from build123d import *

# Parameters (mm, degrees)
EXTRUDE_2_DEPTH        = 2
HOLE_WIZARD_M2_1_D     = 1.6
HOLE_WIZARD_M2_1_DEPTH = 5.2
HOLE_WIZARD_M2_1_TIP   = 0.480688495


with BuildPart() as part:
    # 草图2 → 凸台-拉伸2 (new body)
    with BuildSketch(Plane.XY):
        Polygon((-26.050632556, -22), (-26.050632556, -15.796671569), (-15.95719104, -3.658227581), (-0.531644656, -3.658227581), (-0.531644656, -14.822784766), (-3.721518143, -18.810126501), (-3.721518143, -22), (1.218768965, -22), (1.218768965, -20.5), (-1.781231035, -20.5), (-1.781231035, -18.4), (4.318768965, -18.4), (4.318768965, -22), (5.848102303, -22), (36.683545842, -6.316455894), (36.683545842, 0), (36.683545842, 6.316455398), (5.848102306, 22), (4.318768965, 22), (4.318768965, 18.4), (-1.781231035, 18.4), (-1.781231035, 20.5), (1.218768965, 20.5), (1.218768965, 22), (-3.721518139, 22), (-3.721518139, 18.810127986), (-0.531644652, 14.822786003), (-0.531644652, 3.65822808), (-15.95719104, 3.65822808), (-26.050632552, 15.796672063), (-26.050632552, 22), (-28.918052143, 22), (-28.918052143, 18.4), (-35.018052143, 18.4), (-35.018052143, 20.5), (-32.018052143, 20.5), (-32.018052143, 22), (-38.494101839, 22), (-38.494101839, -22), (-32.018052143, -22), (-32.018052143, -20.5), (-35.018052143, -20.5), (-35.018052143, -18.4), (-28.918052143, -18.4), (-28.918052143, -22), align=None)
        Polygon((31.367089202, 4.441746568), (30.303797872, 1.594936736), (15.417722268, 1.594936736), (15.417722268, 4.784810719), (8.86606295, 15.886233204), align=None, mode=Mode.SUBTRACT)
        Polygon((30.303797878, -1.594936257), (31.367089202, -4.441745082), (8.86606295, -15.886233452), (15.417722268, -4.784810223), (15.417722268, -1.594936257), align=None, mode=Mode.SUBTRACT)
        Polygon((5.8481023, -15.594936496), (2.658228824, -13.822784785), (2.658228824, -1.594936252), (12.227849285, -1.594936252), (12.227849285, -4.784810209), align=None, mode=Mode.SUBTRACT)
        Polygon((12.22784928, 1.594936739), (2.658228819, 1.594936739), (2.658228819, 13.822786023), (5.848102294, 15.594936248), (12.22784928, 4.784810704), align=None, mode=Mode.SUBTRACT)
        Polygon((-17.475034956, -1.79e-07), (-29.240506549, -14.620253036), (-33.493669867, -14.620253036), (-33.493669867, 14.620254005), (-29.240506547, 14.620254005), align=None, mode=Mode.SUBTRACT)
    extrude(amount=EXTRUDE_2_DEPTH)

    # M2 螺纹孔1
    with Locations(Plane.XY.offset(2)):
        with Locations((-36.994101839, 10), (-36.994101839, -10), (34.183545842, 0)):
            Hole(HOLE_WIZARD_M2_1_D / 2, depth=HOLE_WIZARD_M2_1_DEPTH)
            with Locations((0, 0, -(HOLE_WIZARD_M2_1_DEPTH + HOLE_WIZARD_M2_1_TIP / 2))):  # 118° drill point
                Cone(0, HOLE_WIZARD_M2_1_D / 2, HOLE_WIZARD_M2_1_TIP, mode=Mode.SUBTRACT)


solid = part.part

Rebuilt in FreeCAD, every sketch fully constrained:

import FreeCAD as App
import Part
import Sketcher

V = App.Vector

doc = App.newDocument("Part")
body = doc.addObject("PartDesign::Body", "Body")

sketch1 = body.newObject("Sketcher::SketchObject", "Sketch")
sketch1.AttachmentSupport = (doc.getObject("XY_Plane"), [""])
sketch1.MapMode = "FlatFace"
sketch1.addGeometry(Part.LineSegment(V(-26.1, -22, 0), V(-26.1, -15.8, 0)), False)
sketch1.addGeometry(Part.LineSegment(V(-26.1, -15.8, 0), V(-16, -3.7, 0)), False)
sketch1.addGeometry(Part.LineSegment(V(-16, -3.7, 0), V(-0.5, -3.7, 0)), False)
sketch1.addGeometry(Part.LineSegment(V(-0.5, -3.7, 0), V(-0.5, -14.8, 0)), False)
sketch1.addGeometry(Part.LineSegment(V(-0.5, -14.8, 0), V(-3.7, -18.8, 0)), False)
sketch1.addGeometry(Part.LineSegment(V(-3.7, -18.8, 0), V(-3.7, -22, 0)), False)
sketch1.addGeometry(Part.LineSegment(V(-3.7, -22, 0), V(1.2, -22, 0)), False)
sketch1.addGeometry(Part.LineSegment(V(1.2, -22, 0), V(1.2, -20.5, 0)), False)
sketch1.addGeometry(Part.LineSegment(V(1.2, -20.5, 0), V(-1.8, -20.5, 0)), False)
sketch1.addGeometry(Part.LineSegment(V(-1.8, -20.5, 0), V(-1.8, -18.4, 0)), False)
sketch1.addGeometry(Part.LineSegment(V(-1.8, -18.4, 0), V(4.3, -18.4, 0)), False)
sketch1.addGeometry(Part.LineSegment(V(4.3, -18.4, 0), V(4.3, -22, 0)), False)
sketch1.addGeometry(Part.LineSegment(V(4.3, -22, 0), V(5.8, -22, 0)), False)
sketch1.addGeometry(Part.LineSegment(V(5.8, -22, 0), V(36.7, -6.3, 0)), False)
sketch1.addGeometry(Part.LineSegment(V(36.7, -6.3, 0), V(36.7, 6.3, 0)), False)
sketch1.addGeometry(Part.LineSegment(V(36.7, 6.3, 0), V(5.8, 22, 0)), False)
sketch1.addGeometry(Part.LineSegment(V(5.8, 22, 0), V(4.3, 22, 0)), False)
sketch1.addGeometry(Part.LineSegment(V(4.3, 22, 0), V(4.3, 18.4, 0)), False)
sketch1.addGeometry(Part.LineSegment(V(4.3, 18.4, 0), V(-1.8, 18.4, 0)), False)
sketch1.addGeometry(Part.LineSegment(V(-1.8, 18.4, 0), V(-1.8, 20.5, 0)), False)
sketch1.addGeometry(Part.LineSegment(V(-1.8, 20.5, 0), V(1.2, 20.5, 0)), False)
sketch1.addGeometry(Part.LineSegment(V(1.2, 20.5, 0), V(1.2, 22, 0)), False)
sketch1.addGeometry(Part.LineSegment(V(1.2, 22, 0), V(-3.7, 22, 0)), False)
sketch1.addGeometry(Part.LineSegment(V(-3.7, 22, 0), V(-3.7, 18.8, 0)), False)
sketch1.addGeometry(Part.LineSegment(V(-3.7, 18.8, 0), V(-0.5, 14.8, 0)), False)
sketch1.addGeometry(Part.LineSegment(V(-0.5, 14.8, 0), V(-0.5, 3.7, 0)), False)
sketch1.addGeometry(Part.LineSegment(V(-0.5, 3.7, 0), V(-16, 3.7, 0)), False)
sketch1.addGeometry(Part.LineSegment(V(-16, 3.7, 0), V(-26.1, 15.8, 0)), False)
sketch1.addGeometry(Part.LineSegment(V(-26.1, 15.8, 0), V(-26.1, 22, 0)), False)
sketch1.addGeometry(Part.LineSegment(V(-26.1, 22, 0), V(-28.9, 22, 0)), False)
sketch1.addGeometry(Part.LineSegment(V(-28.9, 22, 0), V(-28.9, 18.4, 0)), False)
sketch1.addGeometry(Part.LineSegment(V(-28.9, 18.4, 0), V(-35, 18.4, 0)), False)
sketch1.addGeometry(Part.LineSegment(V(-35, 18.4, 0), V(-35, 20.5, 0)), False)
sketch1.addGeometry(Part.LineSegment(V(-35, 20.5, 0), V(-32, 20.5, 0)), False)
sketch1.addGeometry(Part.LineSegment(V(-32, 20.5, 0), V(-32, 22, 0)), False)
sketch1.addGeometry(Part.LineSegment(V(-32, 22, 0), V(-38.5, 22, 0)), False)
sketch1.addGeometry(Part.LineSegment(V(-38.5, 22, 0), V(-38.5, -22, 0)), False)
sketch1.addGeometry(Part.LineSegment(V(-38.5, -22, 0), V(-32, -22, 0)), False)
sketch1.addGeometry(Part.LineSegment(V(-32, -22, 0), V(-32, -20.5, 0)), False)
sketch1.addGeometry(Part.LineSegment(V(-32, -20.5, 0), V(-35, -20.5, 0)), False)
sketch1.addGeometry(Part.LineSegment(V(-35, -20.5, 0), V(-35, -18.4, 0)), False)
sketch1.addGeometry(Part.LineSegment(V(-35, -18.4, 0), V(-28.9, -18.4, 0)), False)
sketch1.addGeometry(Part.LineSegment(V(-28.9, -18.4, 0), V(-28.9, -22, 0)), False)
sketch1.addGeometry(Part.LineSegment(V(-28.9, -22, 0), V(-26.1, -22, 0)), False)
sketch1.addGeometry(Part.LineSegment(V(12.2, -4.8, 0), V(5.8, -15.6, 0)), False)
sketch1.addGeometry(Part.LineSegment(V(5.8, -15.6, 0), V(2.7, -13.8, 0)), False)
sketch1.addGeometry(Part.LineSegment(V(2.7, -13.8, 0), V(2.7, -1.6, 0)), False)
sketch1.addGeometry(Part.LineSegment(V(2.7, -1.6, 0), V(12.2, -1.6, 0)), False)
sketch1.addGeometry(Part.LineSegment(V(12.2, -1.6, 0), V(12.2, -4.8, 0)), False)
sketch1.addGeometry(Part.LineSegment(V(15.4, -1.6, 0), V(30.3, -1.6, 0)), False)
sketch1.addGeometry(Part.LineSegment(V(30.3, -1.6, 0), V(31.4, -4.4, 0)), False)
sketch1.addGeometry(Part.LineSegment(V(31.4, -4.4, 0), V(8.9, -15.9, 0)), False)
sketch1.addGeometry(Part.LineSegment(V(8.9, -15.9, 0), V(15.4, -4.8, 0)), False)
sketch1.addGeometry(Part.LineSegment(V(15.4, -4.8, 0), V(15.4, -1.6, 0)), False)
sketch1.addGeometry(Part.LineSegment(V(-29.2, 14.6, 0), V(-17.5, 0, 0)), False)
sketch1.addGeometry(Part.LineSegment(V(-17.5, 0, 0), V(-29.2, -14.6, 0)), False)
sketch1.addGeometry(Part.LineSegment(V(-29.2, -14.6, 0), V(-33.5, -14.6, 0)), False)
sketch1.addGeometry(Part.LineSegment(V(-33.5, -14.6, 0), V(-33.5, 14.6, 0)), False)
sketch1.addGeometry(Part.LineSegment(V(-33.5, 14.6, 0), V(-29.2, 14.6, 0)), False)
sketch1.addGeometry(Part.LineSegment(V(12.2, 4.8, 0), V(12.2, 1.6, 0)), False)
sketch1.addGeometry(Part.LineSegment(V(12.2, 1.6, 0), V(2.7, 1.6, 0)), False)
sketch1.addGeometry(Part.LineSegment(V(2.7, 1.6, 0), V(2.7, 13.8, 0)), False)
sketch1.addGeometry(Part.LineSegment(V(2.7, 13.8, 0), V(5.8, 15.6, 0)), False)
sketch1.addGeometry(Part.LineSegment(V(5.8, 15.6, 0), V(12.2, 4.8, 0)), False)
sketch1.addGeometry(Part.LineSegment(V(8.9, 15.9, 0), V(31.4, 4.4, 0)), False)
sketch1.addGeometry(Part.LineSegment(V(31.4, 4.4, 0), V(30.3, 1.6, 0)), False)
sketch1.addGeometry(Part.LineSegment(V(30.3, 1.6, 0), V(15.4, 1.6, 0)), False)
sketch1.addGeometry(Part.LineSegment(V(15.4, 1.6, 0), V(15.4, 4.8, 0)), False)
sketch1.addGeometry(Part.LineSegment(V(15.4, 4.8, 0), V(8.9, 15.9, 0)), False)
sketch1.addConstraint(Sketcher.Constraint("Coincident", 0, 2, 1, 1))
sketch1.addConstraint(Sketcher.Constraint("Coincident", 1, 2, 2, 1))
sketch1.addConstraint(Sketcher.Constraint("Coincident", 2, 2, 3, 1))
sketch1.addConstraint(Sketcher.Constraint("Coincident", 3, 2, 4, 1))
sketch1.addConstraint(Sketcher.Constraint("Coincident", 4, 2, 5, 1))
sketch1.addConstraint(Sketcher.Constraint("Coincident", 5, 2, 6, 1))
sketch1.addConstraint(Sketcher.Constraint("Coincident", 6, 2, 7, 1))
sketch1.addConstraint(Sketcher.Constraint("Coincident", 7, 2, 8, 1))
sketch1.addConstraint(Sketcher.Constraint("Coincident", 8, 2, 9, 1))
sketch1.addConstraint(Sketcher.Constraint("Coincident", 9, 2, 10, 1))
sketch1.addConstraint(Sketcher.Constraint("Coincident", 10, 2, 11, 1))
sketch1.addConstraint(Sketcher.Constraint("Coincident", 11, 2, 12, 1))
sketch1.addConstraint(Sketcher.Constraint("Coincident", 12, 2, 13, 1))
sketch1.addConstraint(Sketcher.Constraint("Coincident", 13, 2, 14, 1))
sketch1.addConstraint(Sketcher.Constraint("Coincident", 14, 2, 15, 1))
sketch1.addConstraint(Sketcher.Constraint("Coincident", 15, 2, 16, 1))
sketch1.addConstraint(Sketcher.Constraint("Coincident", 16, 2, 17, 1))
sketch1.addConstraint(Sketcher.Constraint("Coincident", 17, 2, 18, 1))
sketch1.addConstraint(Sketcher.Constraint("Coincident", 18, 2, 19, 1))
sketch1.addConstraint(Sketcher.Constraint("Coincident", 19, 2, 20, 1))
sketch1.addConstraint(Sketcher.Constraint("Coincident", 20, 2, 21, 1))
sketch1.addConstraint(Sketcher.Constraint("Coincident", 21, 2, 22, 1))
sketch1.addConstraint(Sketcher.Constraint("Coincident", 22, 2, 23, 1))
sketch1.addConstraint(Sketcher.Constraint("Coincident", 23, 2, 24, 1))
sketch1.addConstraint(Sketcher.Constraint("Coincident", 24, 2, 25, 1))
sketch1.addConstraint(Sketcher.Constraint("Coincident", 25, 2, 26, 1))
sketch1.addConstraint(Sketcher.Constraint("Coincident", 26, 2, 27, 1))
sketch1.addConstraint(Sketcher.Constraint("Coincident", 27, 2, 28, 1))
sketch1.addConstraint(Sketcher.Constraint("Coincident", 28, 2, 29, 1))
sketch1.addConstraint(Sketcher.Constraint("Coincident", 29, 2, 30, 1))
sketch1.addConstraint(Sketcher.Constraint("Coincident", 30, 2, 31, 1))
sketch1.addConstraint(Sketcher.Constraint("Coincident", 31, 2, 32, 1))
sketch1.addConstraint(Sketcher.Constraint("Coincident", 32, 2, 33, 1))
sketch1.addConstraint(Sketcher.Constraint("Coincident", 33, 2, 34, 1))
sketch1.addConstraint(Sketcher.Constraint("Coincident", 34, 2, 35, 1))
sketch1.addConstraint(Sketcher.Constraint("Coincident", 35, 2, 36, 1))
sketch1.addConstraint(Sketcher.Constraint("Coincident", 36, 2, 37, 1))
sketch1.addConstraint(Sketcher.Constraint("Coincident", 37, 2, 38, 1))
sketch1.addConstraint(Sketcher.Constraint("Coincident", 38, 2, 39, 1))
sketch1.addConstraint(Sketcher.Constraint("Coincident", 39, 2, 40, 1))
sketch1.addConstraint(Sketcher.Constraint("Coincident", 40, 2, 41, 1))
sketch1.addConstraint(Sketcher.Constraint("Coincident", 41, 2, 42, 1))
sketch1.addConstraint(Sketcher.Constraint("Coincident", 42, 2, 43, 1))
sketch1.addConstraint(Sketcher.Constraint("Coincident", 43, 2, 0, 1))
sketch1.addConstraint(Sketcher.Constraint("Coincident", 44, 2, 45, 1))
sketch1.addConstraint(Sketcher.Constraint("Coincident", 45, 2, 46, 1))
sketch1.addConstraint(Sketcher.Constraint("Coincident", 46, 2, 47, 1))
sketch1.addConstraint(Sketcher.Constraint("Coincident", 47, 2, 48, 1))
sketch1.addConstraint(Sketcher.Constraint("Coincident", 48, 2, 44, 1))
sketch1.addConstraint(Sketcher.Constraint("Coincident", 49, 2, 50, 1))
sketch1.addConstraint(Sketcher.Constraint("Coincident", 50, 2, 51, 1))
sketch1.addConstraint(Sketcher.Constraint("Coincident", 51, 2, 52, 1))
sketch1.addConstraint(Sketcher.Constraint("Coincident", 52, 2, 53, 1))
sketch1.addConstraint(Sketcher.Constraint("Coincident", 53, 2, 49, 1))
sketch1.addConstraint(Sketcher.Constraint("Coincident", 54, 2, 55, 1))
sketch1.addConstraint(Sketcher.Constraint("Coincident", 55, 2, 56, 1))
sketch1.addConstraint(Sketcher.Constraint("Coincident", 56, 2, 57, 1))
sketch1.addConstraint(Sketcher.Constraint("Coincident", 57, 2, 58, 1))
sketch1.addConstraint(Sketcher.Constraint("Coincident", 58, 2, 54, 1))
sketch1.addConstraint(Sketcher.Constraint("Coincident", 59, 2, 60, 1))
sketch1.addConstraint(Sketcher.Constraint("Coincident", 60, 2, 61, 1))
sketch1.addConstraint(Sketcher.Constraint("Coincident", 61, 2, 62, 1))
sketch1.addConstraint(Sketcher.Constraint("Coincident", 62, 2, 63, 1))
sketch1.addConstraint(Sketcher.Constraint("Coincident", 63, 2, 59, 1))
sketch1.addConstraint(Sketcher.Constraint("Coincident", 64, 2, 65, 1))
sketch1.addConstraint(Sketcher.Constraint("Coincident", 65, 2, 66, 1))
sketch1.addConstraint(Sketcher.Constraint("Coincident", 66, 2, 67, 1))
sketch1.addConstraint(Sketcher.Constraint("Coincident", 67, 2, 68, 1))
sketch1.addConstraint(Sketcher.Constraint("Coincident", 68, 2, 64, 1))
sketch1.addConstraint(Sketcher.Constraint("Vertical", 0))
sketch1.addConstraint(Sketcher.Constraint("Horizontal", 2))
sketch1.addConstraint(Sketcher.Constraint("Vertical", 3))
sketch1.addConstraint(Sketcher.Constraint("Vertical", 5))
sketch1.addConstraint(Sketcher.Constraint("Horizontal", 6))
sketch1.addConstraint(Sketcher.Constraint("Vertical", 7))
sketch1.addConstraint(Sketcher.Constraint("Horizontal", 8))
sketch1.addConstraint(Sketcher.Constraint("Vertical", 9))
sketch1.addConstraint(Sketcher.Constraint("Horizontal", 10))
sketch1.addConstraint(Sketcher.Constraint("Vertical", 11))
sketch1.addConstraint(Sketcher.Constraint("Horizontal", 12))
sketch1.addConstraint(Sketcher.Constraint("Vertical", 14))
sketch1.addConstraint(Sketcher.Constraint("Horizontal", 16))
sketch1.addConstraint(Sketcher.Constraint("Vertical", 17))
sketch1.addConstraint(Sketcher.Constraint("Horizontal", 18))
sketch1.addConstraint(Sketcher.Constraint("Vertical", 19))
sketch1.addConstraint(Sketcher.Constraint("Horizontal", 20))
sketch1.addConstraint(Sketcher.Constraint("Vertical", 21))
sketch1.addConstraint(Sketcher.Constraint("Horizontal", 22))
sketch1.addConstraint(Sketcher.Constraint("Vertical", 23))
sketch1.addConstraint(Sketcher.Constraint("Vertical", 25))
sketch1.addConstraint(Sketcher.Constraint("Horizontal", 26))
sketch1.addConstraint(Sketcher.Constraint("Vertical", 28))
sketch1.addConstraint(Sketcher.Constraint("Horizontal", 29))
sketch1.addConstraint(Sketcher.Constraint("Vertical", 30))
sketch1.addConstraint(Sketcher.Constraint("Horizontal", 31))
sketch1.addConstraint(Sketcher.Constraint("Vertical", 32))
sketch1.addConstraint(Sketcher.Constraint("Horizontal", 33))
sketch1.addConstraint(Sketcher.Constraint("Vertical", 34))
sketch1.addConstraint(Sketcher.Constraint("Horizontal", 35))
sketch1.addConstraint(Sketcher.Constraint("Vertical", 36))
sketch1.addConstraint(Sketcher.Constraint("Horizontal", 37))
sketch1.addConstraint(Sketcher.Constraint("Vertical", 38))
sketch1.addConstraint(Sketcher.Constraint("Horizontal", 39))
sketch1.addConstraint(Sketcher.Constraint("Vertical", 40))
sketch1.addConstraint(Sketcher.Constraint("Horizontal", 41))
sketch1.addConstraint(Sketcher.Constraint("Vertical", 42))
sketch1.addConstraint(Sketcher.Constraint("Horizontal", 43))
sketch1.addConstraint(Sketcher.Constraint("Vertical", 46))
sketch1.addConstraint(Sketcher.Constraint("Horizontal", 47))
sketch1.addConstraint(Sketcher.Constraint("Vertical", 48))
sketch1.addConstraint(Sketcher.Constraint("Horizontal", 49))
sketch1.addConstraint(Sketcher.Constraint("Vertical", 53))
sketch1.addConstraint(Sketcher.Constraint("Horizontal", 56))
sketch1.addConstraint(Sketcher.Constraint("Vertical", 57))
sketch1.addConstraint(Sketcher.Constraint("Horizontal", 58))
sketch1.addConstraint(Sketcher.Constraint("Vertical", 59))
sketch1.addConstraint(Sketcher.Constraint("Horizontal", 60))
sketch1.addConstraint(Sketcher.Constraint("Vertical", 61))
sketch1.addConstraint(Sketcher.Constraint("Horizontal", 66))
sketch1.addConstraint(Sketcher.Constraint("Vertical", 67))
sketch1.addConstraint(Sketcher.Constraint("Symmetric", 12, 2, 15, 2, -1))
sketch1.addConstraint(Sketcher.Constraint("Symmetric", 10, 2, 17, 2, -1))
sketch1.addConstraint(Sketcher.Constraint("Symmetric", 8, 2, 19, 2, -1))
sketch1.addConstraint(Sketcher.Constraint("Symmetric", 6, 2, 21, 2, -1))
sketch1.addConstraint(Sketcher.Constraint("Symmetric", 4, 2, 23, 2, -1))
sketch1.addConstraint(Sketcher.Constraint("Symmetric", 3, 2, 24, 2, -1))
sketch1.addConstraint(Sketcher.Constraint("Symmetric", 1, 2, 26, 2, -1))
sketch1.addConstraint(Sketcher.Constraint("Symmetric", 0, 2, 27, 2, -1))
sketch1.addConstraint(Sketcher.Constraint("Symmetric", 34, 2, 37, 2, -1))
sketch1.addConstraint(Sketcher.Constraint("Symmetric", 32, 2, 39, 2, -1))
sketch1.addConstraint(Sketcher.Constraint("Symmetric", 30, 2, 41, 2, -1))
sketch1.addConstraint(Sketcher.Constraint("Symmetric", 55, 2, 58, 2, -1))
sketch1.addConstraint(Sketcher.Constraint("Symmetric", 47, 2, 59, 2, -1))
sketch1.addConstraint(Sketcher.Constraint("Symmetric", 45, 2, 61, 2, -1))
sketch1.addConstraint(Sketcher.Constraint("Symmetric", 44, 2, 62, 2, -1))
sketch1.addConstraint(Sketcher.Constraint("Symmetric", 50, 2, 64, 2, -1))
sketch1.addConstraint(Sketcher.Constraint("Symmetric", 49, 2, 65, 2, -1))
sketch1.addConstraint(Sketcher.Constraint("Symmetric", 52, 2, 67, 2, -1))
sketch1.addConstraint(Sketcher.Constraint("Symmetric", 51, 2, 68, 2, -1))
sketch1.addConstraint(Sketcher.Constraint("PointOnObject", 54, 2, -1))
sketch1.addConstraint(Sketcher.Constraint("Parallel", 13, 51))
sketch1.addConstraint(Sketcher.Constraint("Parallel", 44, 52))
sketch1.addConstraint(Sketcher.Constraint("Parallel", 15, 64))
sketch1.addConstraint(Sketcher.Constraint("Parallel", 63, 68))
sketch1.addConstraint(Sketcher.Constraint("Horizontal", 6, 2, 11, 2))
sketch1.addConstraint(Sketcher.Constraint("Horizontal", 22, 2, 28, 2))
sketch1.addConstraint(Sketcher.Constraint("Horizontal", 18, 2, 30, 2))
sketch1.addConstraint(Sketcher.Constraint("Horizontal", 20, 2, 32, 2))
sketch1.addConstraint(Sketcher.Constraint("Horizontal", 29, 2, 34, 2))
sketch1.addConstraint(Sketcher.Constraint("Horizontal", 37, 2, 42, 2))
sketch1.addConstraint(Sketcher.Constraint("Horizontal", 47, 2, 49, 2))
sketch1.addConstraint(Sketcher.Constraint("Horizontal", 48, 2, 52, 2))
sketch1.addConstraint(Sketcher.Constraint("Vertical", 15, 2, 44, 2))
sketch1.addConstraint(Sketcher.Constraint("Equal", 18, 31))
sketch1.addConstraint(Sketcher.Constraint("Equal", 20, 33))
sketch1.addConstraint(Sketcher.Constraint("Equal", 23, 48))
sketch1.addConstraint(Sketcher.Constraint("DistanceX", 8, 2, 8, 1, 3.0))
sketch1.addConstraint(Sketcher.Constraint("DistanceY", 36, 2, 36, 1, 44.0))
sketch1.addConstraint(Sketcher.Constraint("DistanceX", 10, 1, 10, 2, 6.1))
sketch1.addConstraint(Sketcher.Constraint("DistanceY", 7, 1, 7, 2, 1.5))
sketch1.addConstraint(Sketcher.Constraint("DistanceY", 9, 1, 9, 2, 2.1))
sketch1.addConstraint(Sketcher.Constraint("Distance", 50, 3.038899))
sketch1.addConstraint(Sketcher.Constraint("DistanceX", 29, 2, 29, 1, 2.86742))
sketch1.addConstraint(Sketcher.Constraint("DistanceX", 35, 2, 35, 1, 6.47605))
sketch1.addConstraint(Sketcher.Constraint("DistanceX", 47, 1, 47, 2, 9.56962))
sketch1.addConstraint(Sketcher.Constraint("DistanceY", 0, 1, 0, 2, 6.203328))
sketch1.addConstraint(Sketcher.Constraint("DistanceY", 14, 1, 14, 2, 12.632911))
sketch1.addConstraint(Sketcher.Constraint("DistanceY", 46, 1, 46, 2, 12.227849))
sketch1.addConstraint(Sketcher.Constraint("DistanceX", 35, 2, -1, 1, 38.494102))
sketch1.addConstraint(Sketcher.Constraint("Distance", 4, 5.106289))
sketch1.addConstraint(Sketcher.Constraint("Distance", 13, 34.59477))
sketch1.addConstraint(Sketcher.Constraint("Distance", 44, 12.552291))
sketch1.addConstraint(Sketcher.Constraint("Distance", 54, 18.76641))
sketch1.addConstraint(Sketcher.Constraint("DistanceX", 2, 1, 2, 2, 15.425546))
sketch1.addConstraint(Sketcher.Constraint("DistanceX", 6, 1, 6, 2, 4.940287))
sketch1.addConstraint(Sketcher.Constraint("DistanceX", 12, 1, 12, 2, 1.529333))
sketch1.addConstraint(Sketcher.Constraint("DistanceX", 49, 1, 49, 2, 14.886076))
sketch1.addConstraint(Sketcher.Constraint("DistanceX", 56, 2, 56, 1, 4.253163))
sketch1.addConstraint(Sketcher.Constraint("DistanceY", 3, 2, 3, 1, 11.164557))
sketch1.addConstraint(Sketcher.Constraint("DistanceY", 5, 2, 5, 1, 3.189873))
sketch1.addConstraint(Sketcher.Constraint("DistanceY", 57, 1, 57, 2, 29.240507))
sketch1.addConstraint(Sketcher.Constraint("DistanceX", 1, 2, -1, 1, 15.957191))
sketch1.addConstraint(Sketcher.Constraint("DistanceX", 4, 2, -1, 1, 3.721518))
sketch1.addConstraint(Sketcher.Constraint("DistanceX", -1, 1, 45, 2, 2.658229))
sketch1.addConstraint(Sketcher.Constraint("DistanceY", 48, 2, -1, 1, 4.78481))
sketch1.addConstraint(Sketcher.Constraint("DistanceX", -1, 1, 50, 2, 31.367089))
sketch1.addConstraint(Sketcher.Constraint("DistanceX", 56, 2, -1, 1, 33.49367))
sketch1.addConstraint(Sketcher.Constraint("Distance", 51, 25.244257))
pad1 = body.newObject("PartDesign::Pad", "Pad")
pad1.Profile = sketch1
pad1.Length = 2

sketch2 = body.newObject("Sketcher::SketchObject", "Sketch001")
sketch2.AttachmentSupport = (doc.getObject("XY_Plane"), [""])
sketch2.MapMode = "FlatFace"
sketch2.AttachmentOffset = App.Placement(V(0, 0, 2), App.Rotation())
sketch2.addGeometry(Part.Circle(V(-37, 10, 0), V(0, 0, 1), 0.8), False)
sketch2.addGeometry(Part.Circle(V(-37, -10, 0), V(0, 0, 1), 0.8), False)
sketch2.addGeometry(Part.Circle(V(34.2, 0, 0), V(0, 0, 1), 0.8), False)
sketch2.addConstraint(Sketcher.Constraint("Equal", 0, 1))
sketch2.addConstraint(Sketcher.Constraint("Equal", 1, 2))
sketch2.addConstraint(Sketcher.Constraint("Symmetric", 0, 3, 1, 3, -1))
sketch2.addConstraint(Sketcher.Constraint("PointOnObject", 2, 3, -1))
sketch2.addConstraint(Sketcher.Constraint("Diameter", 0, 1.6))
sketch2.addConstraint(Sketcher.Constraint("DistanceY", -1, 1, 0, 3, 10.0))
sketch2.addConstraint(Sketcher.Constraint("DistanceX", 0, 3, -1, 1, 36.994102))
sketch2.addConstraint(Sketcher.Constraint("DistanceX", -1, 1, 2, 3, 34.183546))
doc.recompute()
hole = body.newObject("PartDesign::Hole", "Hole")
hole.Profile = sketch2
hole.ThreadType = "None"
hole.Diameter = 1.6
hole.DepthType = "Dimension"
hole.Depth = 5.2
hole.DrillPoint = "Angled"
hole.DrillPointAngle = 118

doc.recompute()
